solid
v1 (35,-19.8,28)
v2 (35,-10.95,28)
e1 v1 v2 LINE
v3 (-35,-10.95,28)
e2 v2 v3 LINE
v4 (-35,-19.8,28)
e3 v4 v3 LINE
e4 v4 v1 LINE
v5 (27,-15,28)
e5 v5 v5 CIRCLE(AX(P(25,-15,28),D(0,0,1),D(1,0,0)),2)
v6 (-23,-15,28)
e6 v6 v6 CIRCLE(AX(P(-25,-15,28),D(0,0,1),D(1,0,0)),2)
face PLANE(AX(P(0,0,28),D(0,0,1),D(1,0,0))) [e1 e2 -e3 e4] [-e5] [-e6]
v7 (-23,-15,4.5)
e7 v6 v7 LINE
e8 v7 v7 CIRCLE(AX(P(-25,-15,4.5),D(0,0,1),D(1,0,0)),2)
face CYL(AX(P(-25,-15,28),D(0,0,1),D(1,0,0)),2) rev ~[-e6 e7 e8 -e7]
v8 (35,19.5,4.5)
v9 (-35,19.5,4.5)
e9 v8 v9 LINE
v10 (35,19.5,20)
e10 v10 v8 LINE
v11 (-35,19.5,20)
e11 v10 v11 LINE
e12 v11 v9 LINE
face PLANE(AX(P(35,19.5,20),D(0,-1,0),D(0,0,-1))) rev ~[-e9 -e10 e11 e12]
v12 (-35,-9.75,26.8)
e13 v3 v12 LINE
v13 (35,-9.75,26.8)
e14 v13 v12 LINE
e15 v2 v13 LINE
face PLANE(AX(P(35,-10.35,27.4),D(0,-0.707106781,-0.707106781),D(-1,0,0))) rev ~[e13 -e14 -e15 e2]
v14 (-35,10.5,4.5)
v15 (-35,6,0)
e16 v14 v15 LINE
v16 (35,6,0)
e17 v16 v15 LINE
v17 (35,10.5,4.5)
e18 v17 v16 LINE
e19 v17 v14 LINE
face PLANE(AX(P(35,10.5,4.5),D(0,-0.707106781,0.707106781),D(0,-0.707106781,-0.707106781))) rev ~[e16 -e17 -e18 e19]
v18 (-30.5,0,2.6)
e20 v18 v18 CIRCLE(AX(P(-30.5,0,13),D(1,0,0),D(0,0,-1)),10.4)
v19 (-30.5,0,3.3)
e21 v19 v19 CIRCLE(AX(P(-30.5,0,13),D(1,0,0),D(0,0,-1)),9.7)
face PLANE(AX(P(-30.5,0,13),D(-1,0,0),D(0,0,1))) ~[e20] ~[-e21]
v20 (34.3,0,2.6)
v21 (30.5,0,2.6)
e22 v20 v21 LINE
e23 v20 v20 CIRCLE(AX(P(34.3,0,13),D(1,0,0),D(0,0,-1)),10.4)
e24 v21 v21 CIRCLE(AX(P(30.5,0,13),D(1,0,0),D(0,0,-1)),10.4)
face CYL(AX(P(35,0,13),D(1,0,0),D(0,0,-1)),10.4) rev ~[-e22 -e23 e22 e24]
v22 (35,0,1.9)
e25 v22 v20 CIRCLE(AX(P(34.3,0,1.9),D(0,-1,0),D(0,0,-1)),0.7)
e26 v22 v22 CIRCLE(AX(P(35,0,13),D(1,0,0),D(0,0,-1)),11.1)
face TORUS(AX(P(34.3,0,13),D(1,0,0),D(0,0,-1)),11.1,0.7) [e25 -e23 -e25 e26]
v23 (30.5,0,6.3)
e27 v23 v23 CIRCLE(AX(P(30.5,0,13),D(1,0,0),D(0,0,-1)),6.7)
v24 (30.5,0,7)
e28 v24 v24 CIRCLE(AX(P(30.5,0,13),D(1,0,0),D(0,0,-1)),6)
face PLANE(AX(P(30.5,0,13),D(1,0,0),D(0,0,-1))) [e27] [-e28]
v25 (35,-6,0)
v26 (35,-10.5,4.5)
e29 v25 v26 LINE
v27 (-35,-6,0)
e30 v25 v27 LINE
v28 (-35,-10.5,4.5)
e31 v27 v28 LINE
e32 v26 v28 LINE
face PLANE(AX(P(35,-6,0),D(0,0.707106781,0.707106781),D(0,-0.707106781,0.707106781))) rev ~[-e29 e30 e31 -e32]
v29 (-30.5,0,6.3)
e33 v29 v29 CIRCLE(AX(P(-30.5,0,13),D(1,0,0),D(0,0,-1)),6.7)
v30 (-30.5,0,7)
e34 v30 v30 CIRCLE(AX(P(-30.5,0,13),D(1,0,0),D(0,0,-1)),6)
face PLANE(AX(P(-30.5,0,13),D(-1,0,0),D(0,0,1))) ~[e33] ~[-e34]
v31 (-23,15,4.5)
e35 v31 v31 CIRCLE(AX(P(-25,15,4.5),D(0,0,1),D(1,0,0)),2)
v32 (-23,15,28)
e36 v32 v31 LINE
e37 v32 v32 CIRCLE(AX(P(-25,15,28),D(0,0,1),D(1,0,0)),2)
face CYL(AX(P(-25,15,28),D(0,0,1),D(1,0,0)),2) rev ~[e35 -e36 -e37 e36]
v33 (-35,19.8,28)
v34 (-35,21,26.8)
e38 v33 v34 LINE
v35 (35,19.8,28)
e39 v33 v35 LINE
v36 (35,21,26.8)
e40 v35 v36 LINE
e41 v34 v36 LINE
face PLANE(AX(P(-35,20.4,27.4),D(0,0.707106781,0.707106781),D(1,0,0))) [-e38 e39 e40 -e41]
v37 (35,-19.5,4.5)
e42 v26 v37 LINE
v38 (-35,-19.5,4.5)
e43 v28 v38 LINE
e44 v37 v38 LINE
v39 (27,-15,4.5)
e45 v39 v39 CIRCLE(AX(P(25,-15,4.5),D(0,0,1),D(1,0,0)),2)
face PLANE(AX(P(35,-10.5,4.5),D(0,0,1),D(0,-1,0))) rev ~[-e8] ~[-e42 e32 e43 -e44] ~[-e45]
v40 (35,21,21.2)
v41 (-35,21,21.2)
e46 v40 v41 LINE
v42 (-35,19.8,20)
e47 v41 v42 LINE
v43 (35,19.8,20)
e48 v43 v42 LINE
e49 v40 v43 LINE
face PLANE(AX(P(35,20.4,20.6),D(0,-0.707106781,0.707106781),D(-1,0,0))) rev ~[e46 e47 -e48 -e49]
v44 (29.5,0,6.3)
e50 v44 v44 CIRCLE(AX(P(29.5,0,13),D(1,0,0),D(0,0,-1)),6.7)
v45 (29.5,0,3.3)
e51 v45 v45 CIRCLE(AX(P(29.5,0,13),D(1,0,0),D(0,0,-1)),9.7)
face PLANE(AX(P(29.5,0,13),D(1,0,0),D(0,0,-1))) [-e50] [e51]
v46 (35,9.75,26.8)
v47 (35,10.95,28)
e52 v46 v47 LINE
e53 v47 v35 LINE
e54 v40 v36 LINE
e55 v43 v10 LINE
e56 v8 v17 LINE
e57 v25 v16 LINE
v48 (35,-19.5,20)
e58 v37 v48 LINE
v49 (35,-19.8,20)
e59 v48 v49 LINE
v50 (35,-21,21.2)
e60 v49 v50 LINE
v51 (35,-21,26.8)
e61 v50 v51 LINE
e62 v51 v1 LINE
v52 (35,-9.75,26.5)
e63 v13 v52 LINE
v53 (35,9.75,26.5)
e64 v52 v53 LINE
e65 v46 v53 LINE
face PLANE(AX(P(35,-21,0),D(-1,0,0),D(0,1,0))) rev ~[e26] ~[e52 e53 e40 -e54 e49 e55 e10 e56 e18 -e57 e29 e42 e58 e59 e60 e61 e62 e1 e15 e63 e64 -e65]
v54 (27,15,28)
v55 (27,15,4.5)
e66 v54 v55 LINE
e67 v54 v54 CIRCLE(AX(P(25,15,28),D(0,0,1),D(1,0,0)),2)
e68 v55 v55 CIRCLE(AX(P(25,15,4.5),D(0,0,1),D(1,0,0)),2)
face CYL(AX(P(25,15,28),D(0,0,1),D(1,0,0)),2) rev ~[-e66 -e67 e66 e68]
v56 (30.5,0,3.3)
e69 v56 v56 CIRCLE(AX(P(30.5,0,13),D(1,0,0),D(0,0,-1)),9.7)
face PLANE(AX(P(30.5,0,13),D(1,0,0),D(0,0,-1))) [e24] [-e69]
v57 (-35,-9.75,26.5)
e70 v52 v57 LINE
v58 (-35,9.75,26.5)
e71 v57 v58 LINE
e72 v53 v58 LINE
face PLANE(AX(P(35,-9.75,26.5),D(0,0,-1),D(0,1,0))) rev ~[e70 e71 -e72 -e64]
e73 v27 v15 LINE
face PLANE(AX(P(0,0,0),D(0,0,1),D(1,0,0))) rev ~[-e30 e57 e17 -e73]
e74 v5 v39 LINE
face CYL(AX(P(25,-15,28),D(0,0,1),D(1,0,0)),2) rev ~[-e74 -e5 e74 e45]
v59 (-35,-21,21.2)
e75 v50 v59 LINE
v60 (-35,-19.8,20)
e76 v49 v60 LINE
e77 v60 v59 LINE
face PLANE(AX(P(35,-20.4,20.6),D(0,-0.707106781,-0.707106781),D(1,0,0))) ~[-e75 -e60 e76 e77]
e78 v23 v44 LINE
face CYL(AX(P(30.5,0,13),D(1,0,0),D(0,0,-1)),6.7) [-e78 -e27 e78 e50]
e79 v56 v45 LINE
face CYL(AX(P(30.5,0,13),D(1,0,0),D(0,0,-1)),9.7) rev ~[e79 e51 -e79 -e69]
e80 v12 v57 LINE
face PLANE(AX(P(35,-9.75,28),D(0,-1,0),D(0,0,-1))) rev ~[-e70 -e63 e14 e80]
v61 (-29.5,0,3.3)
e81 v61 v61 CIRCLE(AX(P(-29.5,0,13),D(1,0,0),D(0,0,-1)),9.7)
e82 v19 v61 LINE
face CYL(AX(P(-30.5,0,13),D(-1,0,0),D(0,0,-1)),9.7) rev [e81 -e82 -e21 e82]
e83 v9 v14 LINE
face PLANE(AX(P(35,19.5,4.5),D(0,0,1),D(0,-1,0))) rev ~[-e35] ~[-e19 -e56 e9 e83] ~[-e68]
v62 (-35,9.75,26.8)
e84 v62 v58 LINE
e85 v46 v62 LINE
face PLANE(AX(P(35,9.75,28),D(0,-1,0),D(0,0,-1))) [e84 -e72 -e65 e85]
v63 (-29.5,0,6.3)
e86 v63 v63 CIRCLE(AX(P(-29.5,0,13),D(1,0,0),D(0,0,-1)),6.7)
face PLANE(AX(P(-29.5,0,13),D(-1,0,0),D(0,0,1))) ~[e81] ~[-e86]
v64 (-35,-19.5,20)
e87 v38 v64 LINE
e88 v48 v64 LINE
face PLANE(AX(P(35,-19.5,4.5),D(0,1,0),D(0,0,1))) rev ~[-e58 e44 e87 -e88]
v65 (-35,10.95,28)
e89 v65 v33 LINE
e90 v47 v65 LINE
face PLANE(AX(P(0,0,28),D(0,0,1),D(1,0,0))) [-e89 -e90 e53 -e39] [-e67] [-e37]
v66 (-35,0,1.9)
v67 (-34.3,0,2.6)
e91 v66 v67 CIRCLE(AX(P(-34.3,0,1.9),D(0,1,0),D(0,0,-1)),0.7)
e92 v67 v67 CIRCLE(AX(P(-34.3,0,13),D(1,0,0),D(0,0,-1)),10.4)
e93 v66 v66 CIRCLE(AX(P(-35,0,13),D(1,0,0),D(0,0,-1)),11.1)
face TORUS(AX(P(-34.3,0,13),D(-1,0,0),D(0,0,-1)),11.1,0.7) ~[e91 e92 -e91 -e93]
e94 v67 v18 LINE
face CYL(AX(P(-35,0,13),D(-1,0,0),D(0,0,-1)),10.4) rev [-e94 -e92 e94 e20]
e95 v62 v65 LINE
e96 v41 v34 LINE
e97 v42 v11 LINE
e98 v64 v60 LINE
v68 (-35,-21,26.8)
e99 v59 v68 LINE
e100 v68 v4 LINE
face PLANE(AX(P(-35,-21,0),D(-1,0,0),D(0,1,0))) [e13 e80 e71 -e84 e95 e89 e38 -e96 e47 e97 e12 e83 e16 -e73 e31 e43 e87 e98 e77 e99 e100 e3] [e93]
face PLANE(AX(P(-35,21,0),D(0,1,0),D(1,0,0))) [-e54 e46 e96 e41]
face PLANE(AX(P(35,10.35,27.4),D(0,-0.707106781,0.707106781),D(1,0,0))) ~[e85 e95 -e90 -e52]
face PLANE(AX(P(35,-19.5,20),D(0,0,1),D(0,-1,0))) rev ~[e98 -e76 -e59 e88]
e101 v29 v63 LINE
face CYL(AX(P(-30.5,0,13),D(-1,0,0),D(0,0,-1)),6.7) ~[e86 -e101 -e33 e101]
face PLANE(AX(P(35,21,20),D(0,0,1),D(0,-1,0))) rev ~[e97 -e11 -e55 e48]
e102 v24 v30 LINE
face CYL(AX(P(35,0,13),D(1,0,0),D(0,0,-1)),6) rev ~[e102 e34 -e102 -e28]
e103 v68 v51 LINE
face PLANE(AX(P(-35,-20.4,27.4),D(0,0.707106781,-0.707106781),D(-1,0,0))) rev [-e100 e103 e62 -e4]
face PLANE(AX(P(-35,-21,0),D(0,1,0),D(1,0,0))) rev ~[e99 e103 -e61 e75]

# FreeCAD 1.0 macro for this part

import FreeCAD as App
import Part
import Sketcher
from FreeCAD import Vector


def edges_at(feature, points):
    """Names of the edges that pass closest to the given points."""
    edges = feature.Shape.Edges
    near = lambda p: min(range(len(edges)), key=lambda i: edges[i].distToShape(Part.Vertex(*p))[0])
    return sorted({f"Edge{near(p) + 1}" for p in points})


def add_polygon(sketch, points):
    """Adds a closed chain of lines whose ends are joined by coincident constraints."""
    first, n = sketch.GeometryCount, len(points)
    for a, b in zip(points, points[1:] + points[:1]):
        sketch.addGeometry(Part.LineSegment(App.Vector(*a, 0), App.Vector(*b, 0)), False)
    for i in range(n):
        sketch.addConstraint(Sketcher.Constraint("Coincident", first + i, 2, first + (i + 1) % n, 1))

doc = App.newDocument("Part")
body = doc.addObject("PartDesign::Body", "Body")

# Sketch on XY plane
sketch1 = body.newObject("Sketcher::SketchObject", "Sketch")
sketch1.AttachmentSupport = (doc.getObject("XY_Plane"), [""])
sketch1.MapMode = "FlatFace"
add_polygon(sketch1, [(-35, 21), (-35, -21), (35, -21), (35, 21)])  # lines 0-3
sketch1.addConstraint([
    Sketcher.Constraint("Vertical", 0),
    Sketcher.Constraint("Horizontal", 1),
    Sketcher.Constraint("Vertical", 2),
    Sketcher.Constraint("Horizontal", 3),
    Sketcher.Constraint("Symmetric", 0, 2, 2, 2, -1, 1),
    Sketcher.Constraint("DistanceX", 1, 1, 1, 2, 70.0),
    Sketcher.Constraint("DistanceY", 0, 2, 0, 1, 42.0),
])
pad1 = body.newObject("PartDesign::Pad", "Pad")
pad1.Profile = sketch1
pad1.Length = 28

# Sketch on YZ plane
sketch2 = body.newObject("Sketcher::SketchObject", "Sketch001")
sketch2.AttachmentSupport = (doc.getObject("YZ_Plane"), [""])
sketch2.MapMode = "FlatFace"
sketch2.AttachmentOffset = App.Placement(Vector(0, 0, 35), App.Rotation())
add_polygon(sketch2, [(9.8, 28), (-9.8, 28), (-9.8, 26.5), (9.8, 26.5)])  # lines 0-3
add_polygon(sketch2, [(21, 0), (21, 20), (19.5, 20), (19.5, 4.5), (10.5, 4.5), (6, 0)])  # lines 4-9
add_polygon(sketch2, [(-19.5, 20), (-21, 20), (-21, 0), (-6, 0), (-10.5, 4.5), (-19.5, 4.5)])  # lines 10-15
sketch2.addConstraint([
    Sketcher.Constraint("Horizontal", 0),
    Sketcher.Constraint("Vertical", 1),
    Sketcher.Constraint("Horizontal", 2),
    Sketcher.Constraint("Vertical", 3),
    Sketcher.Constraint("Vertical", 4),
    Sketcher.Constraint("Horizontal", 5),
    Sketcher.Constraint("Vertical", 6),
    Sketcher.Constraint("Horizontal", 7),
    Sketcher.Constraint("Horizontal", 9),
    Sketcher.Constraint("Horizontal", 10),
    Sketcher.Constraint("Vertical", 11),
    Sketcher.Constraint("Horizontal", 12),
    Sketcher.Constraint("Horizontal", 14),
    Sketcher.Constraint("Vertical", 15),
    Sketcher.Constraint("Symmetric", 9, 2, 11, 2, -1, 1),
    Sketcher.Constraint("Symmetric", 8, 2, 12, 2, -2),
    Sketcher.Constraint("Symmetric", 7, 2, 13, 2, -2),
    Sketcher.Constraint("Symmetric", 5, 2, 15, 2, -2),
    Sketcher.Constraint("Perpendicular", 8, 13),
    Sketcher.Constraint("Equal", 10, 1),
    Sketcher.Constraint("DistanceX", 7, 2, 7, 1, 9.0),
    Sketcher.Constraint("DistanceX", 9, 1, 9, 2, 15.0),
    Sketcher.Constraint("DistanceY", 4, 1, 4, 2, 20.0),
    Sketcher.Constraint("DistanceX", 0, 2, 0, 1, 19.5),
    Sketcher.Constraint("DistanceX", 5, 2, 5, 1, 1.5),
    Sketcher.Constraint("DistanceY", -1, 1, 0, 2, 28.0),
    Sketcher.Constraint("DistanceX", -1, 1, 4, 2, 21.0),
    Sketcher.Constraint("DistanceX", 0, 2, -1, 1, 9.75),
])
pocket1 = body.newObject("PartDesign::Pocket", "Pocket")
pocket1.Profile = sketch2
pocket1.Length = 70

# Sketch on XY plane
sketch3 = body.newObject("Sketcher::SketchObject", "Sketch002")
sketch3.AttachmentSupport = (doc.getObject("XY_Plane"), [""])
sketch3.MapMode = "FlatFace"
sketch3.AttachmentOffset = App.Placement(Vector(0, 0, 28), App.Rotation())
sketch3.addGeometry([
    Part.Circle(Vector(25, -15, 0), Vector(0, 0, 1), 2),
    Part.Circle(Vector(-25, -15, 0), Vector(0, 0, 1), 2),
    Part.Circle(Vector(-25, 15, 0), Vector(0, 0, 1), 2),
    Part.Circle(Vector(25, 15, 0), Vector(0, 0, 1), 2),
], False)
sketch3.addConstraint([
    Sketcher.Constraint("Equal", 0, 1),
    Sketcher.Constraint("Equal", 1, 2),
    Sketcher.Constraint("Equal", 2, 3),
    Sketcher.Constraint("Symmetric", 0, 3, 2, 3, -1, 1),
    Sketcher.Constraint("Symmetric", 1, 3, 3, 3, -1, 1),
    Sketcher.Constraint("Symmetric", 0, 3, 1, 3, -2),
    Sketcher.Constraint("Diameter", 0, 4.0),
    Sketcher.Constraint("DistanceX", -1, 1, 0, 3, 25.0),
    Sketcher.Constraint("DistanceY", 0, 3, -1, 1, 15.0),
])
pocket2 = body.newObject("PartDesign::Pocket", "Pocket001")
pocket2.Profile = sketch3
pocket2.Length = 70

# Sketch on YZ plane
sketch4 = body.newObject("Sketcher::SketchObject", "Sketch003")
sketch4.AttachmentSupport = (doc.getObject("YZ_Plane"), [""])
sketch4.MapMode = "FlatFace"
sketch4.AttachmentOffset = App.Placement(Vector(0, 0, 35), App.Rotation())
sketch4.addGeometry(Part.Circle(Vector(0, 13, 0), Vector(0, 0, 1), 6), False)
sketch4.addConstraint([
    Sketcher.Constraint("PointOnObject", 0, 3, -2),
    Sketcher.Constraint("Diameter", 0, 12.0),
    Sketcher.Constraint("DistanceY", -1, 1, 0, 3, 13.0),
])
pocket3 = body.newObject("PartDesign::Pocket", "Pocket002")
pocket3.Profile = sketch4
pocket3.Length = 70

# Sketch on YZ plane
sketch5 = body.newObject("Sketcher::SketchObject", "Sketch004")
sketch5.AttachmentSupport = (doc.getObject("YZ_Plane"), [""])
sketch5.MapMode = "FlatFace"
sketch5.AttachmentOffset = App.Placement(Vector(0, 0, 35), App.Rotation())
sketch5.addGeometry(Part.Circle(Vector(0, 13, 0), Vector(0, 0, 1), 10), False)
sketch5.addConstraint([
    Sketcher.Constraint("PointOnObject", 0, 3, -2),
    Sketcher.Constraint("Diameter", 0, 20.8),
    Sketcher.Constraint("DistanceY", -1, 1, 0, 3, 13.0),
])
pocket4 = body.newObject("PartDesign::Pocket", "Pocket003")
pocket4.Profile = sketch5
pocket4.Length = 4.5

# Sketch on YZ plane
sketch6 = body.newObject("Sketcher::SketchObject", "Sketch005")
sketch6.AttachmentSupport = (doc.getObject("YZ_Plane"), [""])
sketch6.MapMode = "FlatFace"
sketch6.AttachmentOffset = App.Placement(Vector(0, 0, 30.5), App.Rotation())
sketch6.addGeometry([
    Part.Circle(Vector(0, 13, 0), Vector(0, 0, 1), 10),
    Part.Circle(Vector(0, 13, 0), Vector(0, 0, 1), 7),
], False)
sketch6.addConstraint([
    Sketcher.Constraint("Coincident", 1, 3, 0, 3),
    Sketcher.Constraint("PointOnObject", 0, 3, -2),
    Sketcher.Constraint("Diameter", 0, 19.4),
    Sketcher.Constraint("Diameter", 1, 13.4),
    Sketcher.Constraint("DistanceY", -1, 1, 0, 3, 13.0),
])
pocket5 = body.newObject("PartDesign::Pocket", "Pocket004")
pocket5.Profile = sketch6
pocket5.Length = 1
doc.recompute()

mirrored = body.newObject("PartDesign::Mirrored", "Mirrored")
mirrored.Originals = [pocket4, pocket5]
mirrored.MirrorPlane = (doc.getObject("YZ_Plane"), [""])
body.Tip = mirrored
doc.recompute()

chamfer = body.newObject("PartDesign::Chamfer", "Chamfer")
chamfer.Base = (mirrored, edges_at(mirrored, [
    (0, -21, 28),
    (0, -9.75, 28),
    (0, 9.75, 28),
    (0, 21, 20),
    (0, -21, 20),
    (0, 21, 28),
]))
chamfer.Size = 1.2
doc.recompute()

fillet = body.newObject("PartDesign::Fillet", "Fillet")
fillet.Base = (chamfer, edges_at(chamfer, [(-35, 0, 23.4), (35, 0, 23.4)]))
fillet.Radius = 0.7

doc.recompute()
